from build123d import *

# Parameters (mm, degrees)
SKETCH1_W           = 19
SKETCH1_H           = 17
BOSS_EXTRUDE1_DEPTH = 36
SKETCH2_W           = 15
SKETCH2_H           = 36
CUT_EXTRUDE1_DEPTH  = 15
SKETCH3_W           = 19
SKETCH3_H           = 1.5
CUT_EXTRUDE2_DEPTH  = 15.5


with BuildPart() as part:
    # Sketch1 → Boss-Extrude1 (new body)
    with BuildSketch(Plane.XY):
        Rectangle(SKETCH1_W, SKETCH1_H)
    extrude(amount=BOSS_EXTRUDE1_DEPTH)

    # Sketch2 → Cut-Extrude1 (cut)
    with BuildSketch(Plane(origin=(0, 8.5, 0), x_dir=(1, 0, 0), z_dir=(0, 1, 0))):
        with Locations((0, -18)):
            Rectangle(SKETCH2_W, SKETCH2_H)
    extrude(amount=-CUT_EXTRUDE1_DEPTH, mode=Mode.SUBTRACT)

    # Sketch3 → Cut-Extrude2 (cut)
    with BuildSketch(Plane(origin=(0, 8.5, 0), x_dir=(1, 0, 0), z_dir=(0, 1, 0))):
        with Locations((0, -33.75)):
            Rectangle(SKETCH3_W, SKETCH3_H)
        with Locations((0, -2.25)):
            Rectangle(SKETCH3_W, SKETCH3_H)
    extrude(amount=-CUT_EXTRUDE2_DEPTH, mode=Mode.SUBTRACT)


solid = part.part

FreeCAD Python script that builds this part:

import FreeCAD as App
import Part
import Sketcher

V = App.Vector

doc = App.newDocument("Part")
params = doc.addObject("Spreadsheet::Sheet", "Params")
for row, (alias, value) in enumerate([
    ("sketch1_width", "19 mm"),
    ("sketch1_height", "17 mm"),
    ("pad1_length", "36 mm"),
    ("sketch2_width", "15 mm"),
    ("sketch2_height", "36 mm"),
    ("pocket1_length", "15 mm"),
    ("sketch3_width", "19 mm"),
    ("sketch3_height", "1.5 mm"),
    ("pocket2_length", "15.5 mm"),
], start=1):
    params.set(f"A{row}", alias)
    params.set(f"B{row}", "=" + value)
    params.setAlias(f"B{row}", alias)

body = doc.addObject("PartDesign::Body", "Body")

# Sketch on XY plane
sketch1 = doc.addObject("Sketcher::SketchObject", "Sketch")
body.addObject(sketch1)
sketch1.AttachmentSupport = (doc.XY_Plane, [""])
sketch1.MapMode = "FlatFace"
sketch1.addGeometry(Part.LineSegment(V(-9.5, 8.5, 0), V(-9.5, -8.5, 0)), False)
sketch1.addGeometry(Part.LineSegment(V(-9.5, -8.5, 0), V(9.5, -8.5, 0)), False)
sketch1.addGeometry(Part.LineSegment(V(9.5, -8.5, 0), V(9.5, 8.5, 0)), False)
sketch1.addGeometry(Part.LineSegment(V(9.5, 8.5, 0), V(-9.5, 8.5, 0)), False)
sketch1.addConstraint(Sketcher.Constraint("Coincident", 0, 2, 1, 1))
sketch1.addConstraint(Sketcher.Constraint("Coincident", 1, 2, 2, 1))
sketch1.addConstraint(Sketcher.Constraint("Coincident", 2, 2, 3, 1))
sketch1.addConstraint(Sketcher.Constraint("Coincident", 3, 2, 0, 1))
sketch1.addConstraint(Sketcher.Constraint("Vertical", 0))
sketch1.addConstraint(Sketcher.Constraint("Horizontal", 1))
sketch1.addConstraint(Sketcher.Constraint("Vertical", 2))
sketch1.addConstraint(Sketcher.Constraint("Horizontal", 3))
sketch1.addConstraint(Sketcher.Constraint("Symmetric", 0, 2, 2, 2, -1, 1))
sketch1.addConstraint(Sketcher.Constraint("DistanceX", 1, 1, 1, 2, 19.0))
sketch1.addConstraint(Sketcher.Constraint("DistanceY", 0, 2, 0, 1, 17.0))
sketch1.setExpression("Constraints[9]", "Params.sketch1_width")
sketch1.setExpression("Constraints[10]", "Params.sketch1_height")
pad1 = doc.addObject("PartDesign::Pad", "Pad")
body.addObject(pad1)
pad1.Profile = sketch1
pad1.setExpression("Length", "Params.pad1_length")

# Sketch on XZ plane
sketch2 = doc.addObject("Sketcher::SketchObject", "Sketch001")
body.addObject(sketch2)
sketch2.AttachmentSupport = (doc.XZ_Plane, [""])
sketch2.MapMode = "FlatFace"
sketch2.AttachmentOffset = App.Placement(V(0, 0, -8.5), App.Rotation())
sketch2.addGeometry(Part.LineSegment(V(-7.5, 0, 0), V(-7.5, 36, 0)), False)
sketch2.addGeometry(Part.LineSegment(V(-7.5, 36, 0), V(7.5, 36, 0)), False)
sketch2.addGeometry(Part.LineSegment(V(7.5, 36, 0), V(7.5, 0, 0)), False)
sketch2.addGeometry(Part.LineSegment(V(7.5, 0, 0), V(-7.5, 0, 0)), False)
sketch2.addConstraint(Sketcher.Constraint("Coincident", 0, 2, 1, 1))
sketch2.addConstraint(Sketcher.Constraint("Coincident", 1, 2, 2, 1))
sketch2.addConstraint(Sketcher.Constraint("Coincident", 2, 2, 3, 1))
sketch2.addConstraint(Sketcher.Constraint("Coincident", 3, 2, 0, 1))
sketch2.addConstraint(Sketcher.Constraint("Vertical", 0))
sketch2.addConstraint(Sketcher.Constraint("Horizontal", 1))
sketch2.addConstraint(Sketcher.Constraint("Vertical", 2))
sketch2.addConstraint(Sketcher.Constraint("Horizontal", 3))
sketch2.addConstraint(Sketcher.Constraint("Symmetric", 2, 2, 3, 2, -1, 1))
sketch2.addConstraint(Sketcher.Constraint("DistanceX", 1, 1, 1, 2, 15.0))
sketch2.addConstraint(Sketcher.Constraint("DistanceY", 0, 1, 0, 2, 36.0))
sketch2.setExpression("Constraints[9]", "Params.sketch2_width")
sketch2.setExpression("Constraints[10]", "Params.sketch2_height")
pocket1 = doc.addObject("PartDesign::Pocket", "Pocket")
body.addObject(pocket1)
pocket1.Profile = sketch2
pocket1.setExpression("Length", "Params.pocket1_length")
pocket1.Reversed = True

# Sketch on XZ plane
sketch3 = doc.addObject("Sketcher::SketchObject", "Sketch002")
body.addObject(sketch3)
sketch3.AttachmentSupport = (doc.XZ_Plane, [""])
sketch3.MapMode = "FlatFace"
sketch3.AttachmentOffset = App.Placement(V(0, 0, -8.5), App.Rotation())
sketch3.addGeometry(Part.LineSegment(V(-9.5, 33, 0), V(-9.5, 34.5, 0)), False)
sketch3.addGeometry(Part.LineSegment(V(-9.5, 34.5, 0), V(9.5, 34.5, 0)), False)
sketch3.addGeometry(Part.LineSegment(V(9.5, 34.5, 0), V(9.5, 33, 0)), False)
sketch3.addGeometry(Part.LineSegment(V(9.5, 33, 0), V(-9.5, 33, 0)), False)
sketch3.addGeometry(Part.LineSegment(V(-9.5, 1.5, 0), V(-9.5, 3, 0)), False)
sketch3.addGeometry(Part.LineSegment(V(-9.5, 3, 0), V(9.5, 3, 0)), False)
sketch3.addGeometry(Part.LineSegment(V(9.5, 3, 0), V(9.5, 1.5, 0)), False)
sketch3.addGeometry(Part.LineSegment(V(9.5, 1.5, 0), V(-9.5, 1.5, 0)), False)
sketch3.addConstraint(Sketcher.Constraint("Coincident", 0, 2, 1, 1))
sketch3.addConstraint(Sketcher.Constraint("Coincident", 1, 2, 2, 1))
sketch3.addConstraint(Sketcher.Constraint("Coincident", 2, 2, 3, 1))
sketch3.addConstraint(Sketcher.Constraint("Coincident", 3, 2, 0, 1))
sketch3.addConstraint(Sketcher.Constraint("Coincident", 4, 2, 5, 1))
sketch3.addConstraint(Sketcher.Constraint("Coincident", 5, 2, 6, 1))
sketch3.addConstraint(Sketcher.Constraint("Coincident", 6, 2, 7, 1))
sketch3.addConstraint(Sketcher.Constraint("Coincident", 7, 2, 4, 1))
sketch3.addConstraint(Sketcher.Constraint("Vertical", 0))
sketch3.addConstraint(Sketcher.Constraint("Horizontal", 1))
sketch3.addConstraint(Sketcher.Constraint("Vertical", 2))
sketch3.addConstraint(Sketcher.Constraint("Horizontal", 3))
sketch3.addConstraint(Sketcher.Constraint("Vertical", 4))
sketch3.addConstraint(Sketcher.Constraint("Horizontal", 5))
sketch3.addConstraint(Sketcher.Constraint("Vertical", 6))
sketch3.addConstraint(Sketcher.Constraint("Horizontal", 7))
sketch3.addConstraint(Sketcher.Constraint("Vertical", 3, 2, 4, 2))
sketch3.addConstraint(Sketcher.Constraint("Vertical", 2, 2, 5, 2))
sketch3.addConstraint(Sketcher.Constraint("Equal", 2, 4))
sketch3.addConstraint(Sketcher.Constraint("DistanceX", 1, 1, 1, 2, 19.0))
sketch3.addConstraint(Sketcher.Constraint("DistanceY", 0, 1, 0, 2, 1.5))
sketch3.addConstraint(Sketcher.Constraint("DistanceY", -1, 1, 2, 2, 33.0))
sketch3.addConstraint(Sketcher.Constraint("DistanceY", -1, 1, 4, 2, 3.0))
sketch3.addConstraint(Sketcher.Constraint("DistanceX", 0, 2, -1, 1, 9.5))
sketch3.setExpression("Constraints[19]", "Params.sketch3_width")
sketch3.setExpression("Constraints[20]", "Params.sketch3_height")
pocket2 = doc.addObject("PartDesign::Pocket", "Pocket001")
body.addObject(pocket2)
pocket2.Profile = sketch3
pocket2.setExpression("Length", "Params.pocket2_length")
pocket2.Reversed = True

doc.recompute()
